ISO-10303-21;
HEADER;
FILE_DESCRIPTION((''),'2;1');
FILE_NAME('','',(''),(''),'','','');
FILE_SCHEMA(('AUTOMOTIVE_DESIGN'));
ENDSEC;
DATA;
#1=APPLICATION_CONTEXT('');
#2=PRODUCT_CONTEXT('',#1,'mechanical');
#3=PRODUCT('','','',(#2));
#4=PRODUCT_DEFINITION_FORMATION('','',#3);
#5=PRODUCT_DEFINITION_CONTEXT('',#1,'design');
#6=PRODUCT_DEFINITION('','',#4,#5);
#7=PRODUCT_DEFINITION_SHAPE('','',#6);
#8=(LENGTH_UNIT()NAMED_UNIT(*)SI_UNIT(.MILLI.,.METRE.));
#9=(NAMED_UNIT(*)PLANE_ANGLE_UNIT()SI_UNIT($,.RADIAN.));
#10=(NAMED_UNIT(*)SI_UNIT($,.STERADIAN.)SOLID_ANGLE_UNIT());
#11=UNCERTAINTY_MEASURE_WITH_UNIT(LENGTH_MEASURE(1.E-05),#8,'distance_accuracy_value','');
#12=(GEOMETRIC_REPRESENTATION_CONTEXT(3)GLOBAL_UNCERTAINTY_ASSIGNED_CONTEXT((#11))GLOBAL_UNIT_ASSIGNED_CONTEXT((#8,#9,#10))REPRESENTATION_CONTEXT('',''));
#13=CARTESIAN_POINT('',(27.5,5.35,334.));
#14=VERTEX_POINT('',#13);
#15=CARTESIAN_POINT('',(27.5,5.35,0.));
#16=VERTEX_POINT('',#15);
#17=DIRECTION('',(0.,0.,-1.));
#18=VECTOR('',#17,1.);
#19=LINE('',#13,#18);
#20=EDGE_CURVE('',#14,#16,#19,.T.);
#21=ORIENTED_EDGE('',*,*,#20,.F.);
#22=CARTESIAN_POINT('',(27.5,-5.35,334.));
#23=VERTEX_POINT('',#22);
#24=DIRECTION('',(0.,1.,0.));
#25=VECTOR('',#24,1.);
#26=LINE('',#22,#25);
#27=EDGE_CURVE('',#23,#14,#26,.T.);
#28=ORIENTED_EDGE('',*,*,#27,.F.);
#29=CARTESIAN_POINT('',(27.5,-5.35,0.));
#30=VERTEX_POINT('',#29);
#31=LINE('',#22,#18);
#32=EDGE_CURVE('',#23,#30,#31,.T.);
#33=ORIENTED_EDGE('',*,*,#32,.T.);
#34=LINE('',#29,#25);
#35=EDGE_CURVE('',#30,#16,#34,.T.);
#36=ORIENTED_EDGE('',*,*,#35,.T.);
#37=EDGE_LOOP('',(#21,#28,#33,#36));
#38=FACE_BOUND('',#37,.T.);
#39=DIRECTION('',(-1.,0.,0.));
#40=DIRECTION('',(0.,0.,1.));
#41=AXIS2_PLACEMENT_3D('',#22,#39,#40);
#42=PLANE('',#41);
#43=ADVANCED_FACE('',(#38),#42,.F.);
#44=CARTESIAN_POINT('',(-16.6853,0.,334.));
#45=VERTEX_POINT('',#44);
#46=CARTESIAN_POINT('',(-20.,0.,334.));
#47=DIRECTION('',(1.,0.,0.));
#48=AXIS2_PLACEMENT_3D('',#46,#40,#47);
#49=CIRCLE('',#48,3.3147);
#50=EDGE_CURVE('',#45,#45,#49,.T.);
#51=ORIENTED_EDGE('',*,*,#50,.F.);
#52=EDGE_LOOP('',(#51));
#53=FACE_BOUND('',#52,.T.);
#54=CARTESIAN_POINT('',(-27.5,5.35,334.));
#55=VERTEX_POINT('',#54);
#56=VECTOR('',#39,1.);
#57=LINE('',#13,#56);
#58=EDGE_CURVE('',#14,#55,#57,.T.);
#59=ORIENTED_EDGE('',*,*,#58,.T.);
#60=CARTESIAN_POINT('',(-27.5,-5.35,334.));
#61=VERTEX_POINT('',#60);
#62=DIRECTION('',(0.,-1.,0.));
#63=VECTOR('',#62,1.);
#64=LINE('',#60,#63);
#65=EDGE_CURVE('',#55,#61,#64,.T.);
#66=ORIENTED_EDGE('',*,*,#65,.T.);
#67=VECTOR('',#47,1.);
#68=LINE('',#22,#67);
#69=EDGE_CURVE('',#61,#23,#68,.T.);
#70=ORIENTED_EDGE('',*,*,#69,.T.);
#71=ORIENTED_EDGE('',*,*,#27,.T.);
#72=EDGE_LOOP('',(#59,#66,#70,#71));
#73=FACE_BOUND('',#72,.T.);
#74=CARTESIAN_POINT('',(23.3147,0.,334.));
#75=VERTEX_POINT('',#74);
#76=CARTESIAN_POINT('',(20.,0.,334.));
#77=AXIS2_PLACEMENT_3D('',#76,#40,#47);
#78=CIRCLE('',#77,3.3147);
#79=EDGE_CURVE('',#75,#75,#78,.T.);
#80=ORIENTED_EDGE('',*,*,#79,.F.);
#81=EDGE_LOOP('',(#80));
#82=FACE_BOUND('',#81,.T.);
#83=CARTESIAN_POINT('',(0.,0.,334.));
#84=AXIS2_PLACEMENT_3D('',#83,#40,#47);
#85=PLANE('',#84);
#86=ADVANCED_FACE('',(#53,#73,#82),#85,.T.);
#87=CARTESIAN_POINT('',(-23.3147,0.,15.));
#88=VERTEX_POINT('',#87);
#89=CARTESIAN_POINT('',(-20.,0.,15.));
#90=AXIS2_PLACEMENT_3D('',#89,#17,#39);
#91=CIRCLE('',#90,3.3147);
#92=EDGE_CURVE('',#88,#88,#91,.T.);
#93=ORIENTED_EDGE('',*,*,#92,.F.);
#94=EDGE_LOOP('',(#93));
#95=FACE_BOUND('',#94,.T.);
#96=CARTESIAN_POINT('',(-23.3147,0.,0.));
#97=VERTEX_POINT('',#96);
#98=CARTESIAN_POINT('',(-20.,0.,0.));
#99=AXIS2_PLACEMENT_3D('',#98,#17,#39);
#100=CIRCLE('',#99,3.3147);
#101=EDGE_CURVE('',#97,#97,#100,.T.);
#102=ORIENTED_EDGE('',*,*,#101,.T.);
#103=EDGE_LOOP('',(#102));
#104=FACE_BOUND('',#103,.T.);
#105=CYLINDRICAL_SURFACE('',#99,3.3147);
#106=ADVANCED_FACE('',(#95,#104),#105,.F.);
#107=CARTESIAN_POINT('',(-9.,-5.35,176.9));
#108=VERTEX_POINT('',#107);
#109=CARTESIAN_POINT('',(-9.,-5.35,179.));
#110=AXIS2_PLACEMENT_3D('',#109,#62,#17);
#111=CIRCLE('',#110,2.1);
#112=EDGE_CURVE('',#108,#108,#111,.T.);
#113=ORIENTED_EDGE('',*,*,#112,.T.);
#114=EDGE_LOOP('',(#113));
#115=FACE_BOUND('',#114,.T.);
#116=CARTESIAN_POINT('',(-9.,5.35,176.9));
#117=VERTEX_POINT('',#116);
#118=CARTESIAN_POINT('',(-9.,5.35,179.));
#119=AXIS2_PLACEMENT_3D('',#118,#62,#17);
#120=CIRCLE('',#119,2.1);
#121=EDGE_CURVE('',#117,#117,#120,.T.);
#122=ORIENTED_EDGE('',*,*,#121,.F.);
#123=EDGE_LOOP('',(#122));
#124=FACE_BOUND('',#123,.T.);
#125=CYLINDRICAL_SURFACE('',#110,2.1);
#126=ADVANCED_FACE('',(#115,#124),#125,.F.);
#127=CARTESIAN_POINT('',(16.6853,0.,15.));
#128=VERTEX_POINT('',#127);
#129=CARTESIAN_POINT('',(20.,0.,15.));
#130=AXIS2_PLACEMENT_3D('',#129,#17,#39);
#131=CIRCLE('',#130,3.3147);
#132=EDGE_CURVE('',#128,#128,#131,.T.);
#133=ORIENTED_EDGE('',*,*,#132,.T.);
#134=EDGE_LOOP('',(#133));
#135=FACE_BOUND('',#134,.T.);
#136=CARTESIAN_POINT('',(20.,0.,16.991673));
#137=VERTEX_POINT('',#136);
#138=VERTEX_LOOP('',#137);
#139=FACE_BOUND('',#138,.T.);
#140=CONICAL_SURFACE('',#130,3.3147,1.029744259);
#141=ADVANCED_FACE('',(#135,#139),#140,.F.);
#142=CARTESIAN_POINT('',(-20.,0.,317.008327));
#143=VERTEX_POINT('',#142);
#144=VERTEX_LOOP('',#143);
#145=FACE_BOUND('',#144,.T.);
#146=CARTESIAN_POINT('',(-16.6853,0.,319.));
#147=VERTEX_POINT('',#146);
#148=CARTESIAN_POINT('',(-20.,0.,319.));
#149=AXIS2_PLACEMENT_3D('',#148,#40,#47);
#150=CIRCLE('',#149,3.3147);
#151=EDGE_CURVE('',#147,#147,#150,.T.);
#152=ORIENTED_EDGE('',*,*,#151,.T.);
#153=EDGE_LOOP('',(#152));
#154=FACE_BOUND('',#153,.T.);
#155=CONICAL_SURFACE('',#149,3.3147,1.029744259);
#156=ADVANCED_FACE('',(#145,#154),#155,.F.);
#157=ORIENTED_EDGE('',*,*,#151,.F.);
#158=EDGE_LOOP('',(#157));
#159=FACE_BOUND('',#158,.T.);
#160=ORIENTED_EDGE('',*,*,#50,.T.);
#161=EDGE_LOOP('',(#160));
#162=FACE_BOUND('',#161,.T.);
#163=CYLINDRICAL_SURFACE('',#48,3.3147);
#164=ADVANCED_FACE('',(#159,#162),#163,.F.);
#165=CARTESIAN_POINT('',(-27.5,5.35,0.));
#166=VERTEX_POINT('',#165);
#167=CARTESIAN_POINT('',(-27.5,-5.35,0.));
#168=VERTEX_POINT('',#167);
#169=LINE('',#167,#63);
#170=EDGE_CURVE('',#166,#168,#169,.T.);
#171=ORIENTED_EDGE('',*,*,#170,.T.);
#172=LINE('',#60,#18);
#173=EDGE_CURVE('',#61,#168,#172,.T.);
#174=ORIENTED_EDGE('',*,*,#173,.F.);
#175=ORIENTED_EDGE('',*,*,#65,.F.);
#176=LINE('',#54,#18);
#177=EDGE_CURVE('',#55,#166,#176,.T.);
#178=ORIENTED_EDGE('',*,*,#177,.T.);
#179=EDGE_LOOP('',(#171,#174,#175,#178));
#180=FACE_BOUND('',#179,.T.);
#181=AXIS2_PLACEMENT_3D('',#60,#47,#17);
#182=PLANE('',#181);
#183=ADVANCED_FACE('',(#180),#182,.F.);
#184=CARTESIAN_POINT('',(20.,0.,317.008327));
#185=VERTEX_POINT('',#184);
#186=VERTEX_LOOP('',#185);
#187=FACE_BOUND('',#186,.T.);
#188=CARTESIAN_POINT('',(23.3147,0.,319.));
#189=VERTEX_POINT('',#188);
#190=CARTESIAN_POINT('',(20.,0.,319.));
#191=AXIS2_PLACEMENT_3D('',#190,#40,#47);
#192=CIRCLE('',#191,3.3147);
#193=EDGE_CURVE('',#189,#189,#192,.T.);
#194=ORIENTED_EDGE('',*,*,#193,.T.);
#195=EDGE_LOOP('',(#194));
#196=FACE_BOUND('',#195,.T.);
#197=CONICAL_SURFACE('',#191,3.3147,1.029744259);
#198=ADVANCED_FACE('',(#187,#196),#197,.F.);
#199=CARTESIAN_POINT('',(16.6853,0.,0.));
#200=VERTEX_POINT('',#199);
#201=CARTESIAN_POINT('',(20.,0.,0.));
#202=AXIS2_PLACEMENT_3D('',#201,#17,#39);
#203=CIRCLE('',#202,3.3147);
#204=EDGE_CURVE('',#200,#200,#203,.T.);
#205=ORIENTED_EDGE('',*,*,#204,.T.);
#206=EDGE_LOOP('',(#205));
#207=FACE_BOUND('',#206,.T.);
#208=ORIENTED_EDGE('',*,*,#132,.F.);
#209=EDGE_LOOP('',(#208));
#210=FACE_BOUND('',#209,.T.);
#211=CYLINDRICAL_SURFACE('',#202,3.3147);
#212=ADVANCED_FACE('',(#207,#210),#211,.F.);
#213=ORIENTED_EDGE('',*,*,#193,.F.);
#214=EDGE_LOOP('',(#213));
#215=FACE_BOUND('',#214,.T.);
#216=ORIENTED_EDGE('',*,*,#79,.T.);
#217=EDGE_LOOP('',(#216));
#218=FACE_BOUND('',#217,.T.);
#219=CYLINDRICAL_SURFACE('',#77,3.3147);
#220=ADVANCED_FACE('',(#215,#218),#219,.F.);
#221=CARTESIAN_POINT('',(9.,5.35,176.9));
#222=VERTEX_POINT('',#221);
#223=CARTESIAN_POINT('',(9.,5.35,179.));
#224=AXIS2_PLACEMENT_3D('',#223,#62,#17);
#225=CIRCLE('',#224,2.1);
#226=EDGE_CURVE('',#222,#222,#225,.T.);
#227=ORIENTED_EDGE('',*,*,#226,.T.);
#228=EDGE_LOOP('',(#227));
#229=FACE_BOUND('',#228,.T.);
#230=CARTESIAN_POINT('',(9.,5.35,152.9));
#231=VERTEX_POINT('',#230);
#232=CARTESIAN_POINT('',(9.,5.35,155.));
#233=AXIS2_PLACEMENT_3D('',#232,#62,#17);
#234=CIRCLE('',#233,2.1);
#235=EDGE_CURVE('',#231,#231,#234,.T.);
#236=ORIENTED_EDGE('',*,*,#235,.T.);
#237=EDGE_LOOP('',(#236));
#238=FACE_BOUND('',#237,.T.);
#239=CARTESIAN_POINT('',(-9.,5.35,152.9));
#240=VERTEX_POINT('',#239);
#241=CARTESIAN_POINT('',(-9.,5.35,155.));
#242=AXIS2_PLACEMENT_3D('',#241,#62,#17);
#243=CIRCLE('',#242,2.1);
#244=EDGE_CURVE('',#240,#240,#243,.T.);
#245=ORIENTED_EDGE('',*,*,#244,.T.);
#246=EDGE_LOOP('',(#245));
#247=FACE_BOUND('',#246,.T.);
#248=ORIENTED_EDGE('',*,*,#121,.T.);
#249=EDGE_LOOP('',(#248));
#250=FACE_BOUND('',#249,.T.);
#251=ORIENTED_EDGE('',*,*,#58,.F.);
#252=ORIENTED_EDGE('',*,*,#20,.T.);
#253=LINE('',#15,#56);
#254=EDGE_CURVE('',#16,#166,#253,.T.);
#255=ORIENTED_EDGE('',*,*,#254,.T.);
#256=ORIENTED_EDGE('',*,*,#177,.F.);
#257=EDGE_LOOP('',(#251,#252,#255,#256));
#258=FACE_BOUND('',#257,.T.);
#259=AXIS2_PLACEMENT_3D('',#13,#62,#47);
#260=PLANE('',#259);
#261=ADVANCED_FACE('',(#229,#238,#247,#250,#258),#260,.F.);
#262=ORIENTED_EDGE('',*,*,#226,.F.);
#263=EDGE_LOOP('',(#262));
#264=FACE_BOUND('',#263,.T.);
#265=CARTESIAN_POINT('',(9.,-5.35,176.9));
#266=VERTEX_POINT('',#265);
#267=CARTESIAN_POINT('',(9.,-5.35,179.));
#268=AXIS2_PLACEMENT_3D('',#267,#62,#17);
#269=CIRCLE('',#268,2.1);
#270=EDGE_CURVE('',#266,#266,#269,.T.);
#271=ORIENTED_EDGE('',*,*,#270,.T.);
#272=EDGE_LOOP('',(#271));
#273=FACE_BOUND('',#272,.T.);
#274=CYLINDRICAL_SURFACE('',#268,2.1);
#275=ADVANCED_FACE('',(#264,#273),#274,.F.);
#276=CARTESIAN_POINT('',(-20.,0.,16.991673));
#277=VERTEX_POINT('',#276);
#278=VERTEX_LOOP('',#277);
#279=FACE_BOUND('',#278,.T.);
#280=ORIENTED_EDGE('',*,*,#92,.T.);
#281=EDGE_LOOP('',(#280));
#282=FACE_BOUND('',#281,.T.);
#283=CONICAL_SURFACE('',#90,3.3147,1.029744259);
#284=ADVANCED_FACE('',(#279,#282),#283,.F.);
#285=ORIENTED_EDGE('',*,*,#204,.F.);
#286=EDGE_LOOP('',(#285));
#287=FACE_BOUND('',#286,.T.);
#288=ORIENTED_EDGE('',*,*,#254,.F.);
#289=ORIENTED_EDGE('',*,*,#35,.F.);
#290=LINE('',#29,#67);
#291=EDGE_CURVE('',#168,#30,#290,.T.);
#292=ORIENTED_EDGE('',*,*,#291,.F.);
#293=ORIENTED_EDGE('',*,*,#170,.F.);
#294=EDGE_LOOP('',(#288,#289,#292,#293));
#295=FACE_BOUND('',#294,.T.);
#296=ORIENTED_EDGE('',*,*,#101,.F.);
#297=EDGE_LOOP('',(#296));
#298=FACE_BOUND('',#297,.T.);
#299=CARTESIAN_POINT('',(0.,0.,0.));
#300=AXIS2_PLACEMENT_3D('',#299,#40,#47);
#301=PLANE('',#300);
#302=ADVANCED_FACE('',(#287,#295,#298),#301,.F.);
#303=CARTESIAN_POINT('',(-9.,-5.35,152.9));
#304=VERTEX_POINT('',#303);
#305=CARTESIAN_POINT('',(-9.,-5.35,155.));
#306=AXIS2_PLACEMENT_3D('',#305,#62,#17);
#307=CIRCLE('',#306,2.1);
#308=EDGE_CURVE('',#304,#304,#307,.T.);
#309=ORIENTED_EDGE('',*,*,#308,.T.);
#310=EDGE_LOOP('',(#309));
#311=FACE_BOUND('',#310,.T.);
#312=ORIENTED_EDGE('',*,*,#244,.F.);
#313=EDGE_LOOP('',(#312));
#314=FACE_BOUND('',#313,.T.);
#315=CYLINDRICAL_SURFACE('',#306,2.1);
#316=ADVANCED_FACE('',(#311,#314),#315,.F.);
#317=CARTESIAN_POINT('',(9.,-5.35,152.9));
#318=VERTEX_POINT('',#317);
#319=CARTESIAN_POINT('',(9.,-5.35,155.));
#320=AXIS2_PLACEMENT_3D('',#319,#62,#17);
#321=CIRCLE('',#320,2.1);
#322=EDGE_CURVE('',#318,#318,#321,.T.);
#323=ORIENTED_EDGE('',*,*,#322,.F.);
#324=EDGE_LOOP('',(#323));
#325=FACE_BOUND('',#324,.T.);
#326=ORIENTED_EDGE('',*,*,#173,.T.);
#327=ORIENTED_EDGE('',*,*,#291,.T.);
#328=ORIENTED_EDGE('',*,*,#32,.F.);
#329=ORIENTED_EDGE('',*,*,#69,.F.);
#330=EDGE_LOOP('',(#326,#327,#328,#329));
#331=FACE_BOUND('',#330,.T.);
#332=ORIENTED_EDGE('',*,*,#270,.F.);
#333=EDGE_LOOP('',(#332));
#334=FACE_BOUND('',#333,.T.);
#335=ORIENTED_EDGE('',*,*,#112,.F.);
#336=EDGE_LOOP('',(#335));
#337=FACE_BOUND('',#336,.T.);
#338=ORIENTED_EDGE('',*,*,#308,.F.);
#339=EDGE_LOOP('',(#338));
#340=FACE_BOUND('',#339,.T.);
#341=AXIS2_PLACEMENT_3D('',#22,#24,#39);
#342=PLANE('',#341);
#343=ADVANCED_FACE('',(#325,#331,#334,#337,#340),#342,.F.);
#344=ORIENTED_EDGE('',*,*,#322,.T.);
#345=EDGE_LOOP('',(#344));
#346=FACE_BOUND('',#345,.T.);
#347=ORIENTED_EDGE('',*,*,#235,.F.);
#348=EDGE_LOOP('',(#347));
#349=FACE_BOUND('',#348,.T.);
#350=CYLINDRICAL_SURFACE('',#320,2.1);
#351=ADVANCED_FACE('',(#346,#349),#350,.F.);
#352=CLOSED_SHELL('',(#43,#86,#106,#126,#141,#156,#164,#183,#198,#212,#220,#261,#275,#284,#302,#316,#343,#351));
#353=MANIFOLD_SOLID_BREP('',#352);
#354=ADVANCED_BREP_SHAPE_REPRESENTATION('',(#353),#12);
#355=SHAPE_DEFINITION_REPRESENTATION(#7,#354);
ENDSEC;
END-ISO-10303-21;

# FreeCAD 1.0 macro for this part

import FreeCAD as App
import Part
import Sketcher
from FreeCAD import Vector

doc = App.newDocument("Part")
body = doc.addObject("PartDesign::Body", "Body")

# Sketch on XY plane
sketch1 = body.newObject("Sketcher::SketchObject", "Sketch")
sketch1.AttachmentSupport = (doc.getObject("XY_Plane"), [""])
sketch1.MapMode = "FlatFace"
sketch1.addGeometry([
    Part.LineSegment(Vector(-28, 5, 0), Vector(-28, -5, 0)),
    Part.LineSegment(Vector(-28, -5, 0), Vector(28, -5, 0)),
    Part.LineSegment(Vector(28, -5, 0), Vector(28, 5, 0)),
    Part.LineSegment(Vector(28, 5, 0), Vector(-28, 5, 0)),
], False)
sketch1.addConstraint([
    Sketcher.Constraint("Coincident", 0, 2, 1, 1),
    Sketcher.Constraint("Coincident", 1, 2, 2, 1),
    Sketcher.Constraint("Coincident", 2, 2, 3, 1),
    Sketcher.Constraint("Coincident", 3, 2, 0, 1),
    Sketcher.Constraint("Vertical", 0),
    Sketcher.Constraint("Horizontal", 1),
    Sketcher.Constraint("Vertical", 2),
    Sketcher.Constraint("Horizontal", 3),
    Sketcher.Constraint("Symmetric", 0, 2, 2, 2, -1, 1),
    Sketcher.Constraint("DistanceX", 1, 1, 1, 2, 55.0),
    Sketcher.Constraint("DistanceY", 0, 2, 0, 1, 10.7),
])
pad1 = body.newObject("PartDesign::Pad", "Pad")
pad1.Profile = sketch1
pad1.Length = 334

# Sketch on XZ plane
sketch2 = body.newObject("Sketcher::SketchObject", "Sketch001")
sketch2.AttachmentSupport = (doc.getObject("XZ_Plane"), [""])
sketch2.MapMode = "FlatFace"
sketch2.AttachmentOffset = App.Placement(Vector(0, 0, 5.35), App.Rotation())
sketch2.addGeometry([
    Part.Circle(Vector(-9, 155, 0), Vector(0, 0, 1), 2.1),
    Part.Circle(Vector(9, 155, 0), Vector(0, 0, 1), 2.1),
    Part.Circle(Vector(9, 179, 0), Vector(0, 0, 1), 2.1),
    Part.Circle(Vector(-9, 179, 0), Vector(0, 0, 1), 2.1),
], False)
sketch2.addConstraint([
    Sketcher.Constraint("Equal", 0, 1),
    Sketcher.Constraint("Equal", 1, 2),
    Sketcher.Constraint("Equal", 2, 3),
    Sketcher.Constraint("Symmetric", 0, 3, 1, 3, -2),
    Sketcher.Constraint("Symmetric", 2, 3, 3, 3, -2),
    Sketcher.Constraint("Vertical", 1, 3, 2, 3),
    Sketcher.Constraint("Diameter", 0, 4.2),
    Sketcher.Constraint("DistanceX", 0, 3, -1, 1, 9.0),
    Sketcher.Constraint("DistanceY", -1, 1, 0, 3, 155.0),
    Sketcher.Constraint("DistanceY", -1, 1, 2, 3, 179.0),
])
doc.recompute()
hole = body.newObject("PartDesign::Hole", "Hole")
hole.Profile = sketch2
hole.ThreadType = "None"
hole.Diameter = 4.2
hole.DepthType = "ThroughAll"

# Sketch on XY plane
sketch3 = body.newObject("Sketcher::SketchObject", "Sketch002")
sketch3.AttachmentSupport = (doc.getObject("XY_Plane"), [""])
sketch3.MapMode = "FlatFace"
sketch3.AttachmentOffset = App.Placement(Vector(0, 0, 334), App.Rotation())
sketch3.addGeometry([
    Part.Circle(Vector(-20, 0, 0), Vector(0, 0, 1), 3.3),
    Part.Circle(Vector(20, 0, 0), Vector(0, 0, 1), 3.3),
], False)
sketch3.addConstraint([
    Sketcher.Constraint("Equal", 0, 1),
    Sketcher.Constraint("Symmetric", 0, 3, 1, 3, -1, 1),
    Sketcher.Constraint("PointOnObject", 0, 3, -1),
    Sketcher.Constraint("DistanceX", 0, 3, -1, 1, 20.0),
    Sketcher.Constraint("Diameter", 0, 6.6294),
])
doc.recompute()
hole2 = body.newObject("PartDesign::Hole", "Hole001")
hole2.Profile = sketch3
hole2.ThreadType = "None"
hole2.Diameter = 6.6294
hole2.DepthType = "Dimension"
hole2.Depth = 15
hole2.DrillPoint = "Angled"
hole2.DrillPointAngle = 118

# Sketch on XY plane
sketch4 = body.newObject("Sketcher::SketchObject", "Sketch003")
sketch4.AttachmentSupport = (doc.getObject("XY_Plane"), [""])
sketch4.MapMode = "FlatFace"
sketch4.addGeometry([
    Part.Circle(Vector(20, 0, 0), Vector(0, 0, 1), 3.3),
    Part.Circle(Vector(-20, 0, 0), Vector(0, 0, 1), 3.3),
], False)
sketch4.addConstraint([
    Sketcher.Constraint("Equal", 0, 1),
    Sketcher.Constraint("Symmetric", 0, 3, 1, 3, -1, 1),
    Sketcher.Constraint("PointOnObject", 0, 3, -1),
    Sketcher.Constraint("DistanceX", -1, 1, 0, 3, 20.0),
    Sketcher.Constraint("Diameter", 0, 6.6294),
])
doc.recompute()
hole3 = body.newObject("PartDesign::Hole", "Hole002")
hole3.Profile = sketch4
hole3.ThreadType = "None"
hole3.Diameter = 6.6294
hole3.DepthType = "Dimension"
hole3.Depth = 15
hole3.DrillPoint = "Angled"
hole3.DrillPointAngle = 118
hole3.Reversed = True

doc.recompute()
